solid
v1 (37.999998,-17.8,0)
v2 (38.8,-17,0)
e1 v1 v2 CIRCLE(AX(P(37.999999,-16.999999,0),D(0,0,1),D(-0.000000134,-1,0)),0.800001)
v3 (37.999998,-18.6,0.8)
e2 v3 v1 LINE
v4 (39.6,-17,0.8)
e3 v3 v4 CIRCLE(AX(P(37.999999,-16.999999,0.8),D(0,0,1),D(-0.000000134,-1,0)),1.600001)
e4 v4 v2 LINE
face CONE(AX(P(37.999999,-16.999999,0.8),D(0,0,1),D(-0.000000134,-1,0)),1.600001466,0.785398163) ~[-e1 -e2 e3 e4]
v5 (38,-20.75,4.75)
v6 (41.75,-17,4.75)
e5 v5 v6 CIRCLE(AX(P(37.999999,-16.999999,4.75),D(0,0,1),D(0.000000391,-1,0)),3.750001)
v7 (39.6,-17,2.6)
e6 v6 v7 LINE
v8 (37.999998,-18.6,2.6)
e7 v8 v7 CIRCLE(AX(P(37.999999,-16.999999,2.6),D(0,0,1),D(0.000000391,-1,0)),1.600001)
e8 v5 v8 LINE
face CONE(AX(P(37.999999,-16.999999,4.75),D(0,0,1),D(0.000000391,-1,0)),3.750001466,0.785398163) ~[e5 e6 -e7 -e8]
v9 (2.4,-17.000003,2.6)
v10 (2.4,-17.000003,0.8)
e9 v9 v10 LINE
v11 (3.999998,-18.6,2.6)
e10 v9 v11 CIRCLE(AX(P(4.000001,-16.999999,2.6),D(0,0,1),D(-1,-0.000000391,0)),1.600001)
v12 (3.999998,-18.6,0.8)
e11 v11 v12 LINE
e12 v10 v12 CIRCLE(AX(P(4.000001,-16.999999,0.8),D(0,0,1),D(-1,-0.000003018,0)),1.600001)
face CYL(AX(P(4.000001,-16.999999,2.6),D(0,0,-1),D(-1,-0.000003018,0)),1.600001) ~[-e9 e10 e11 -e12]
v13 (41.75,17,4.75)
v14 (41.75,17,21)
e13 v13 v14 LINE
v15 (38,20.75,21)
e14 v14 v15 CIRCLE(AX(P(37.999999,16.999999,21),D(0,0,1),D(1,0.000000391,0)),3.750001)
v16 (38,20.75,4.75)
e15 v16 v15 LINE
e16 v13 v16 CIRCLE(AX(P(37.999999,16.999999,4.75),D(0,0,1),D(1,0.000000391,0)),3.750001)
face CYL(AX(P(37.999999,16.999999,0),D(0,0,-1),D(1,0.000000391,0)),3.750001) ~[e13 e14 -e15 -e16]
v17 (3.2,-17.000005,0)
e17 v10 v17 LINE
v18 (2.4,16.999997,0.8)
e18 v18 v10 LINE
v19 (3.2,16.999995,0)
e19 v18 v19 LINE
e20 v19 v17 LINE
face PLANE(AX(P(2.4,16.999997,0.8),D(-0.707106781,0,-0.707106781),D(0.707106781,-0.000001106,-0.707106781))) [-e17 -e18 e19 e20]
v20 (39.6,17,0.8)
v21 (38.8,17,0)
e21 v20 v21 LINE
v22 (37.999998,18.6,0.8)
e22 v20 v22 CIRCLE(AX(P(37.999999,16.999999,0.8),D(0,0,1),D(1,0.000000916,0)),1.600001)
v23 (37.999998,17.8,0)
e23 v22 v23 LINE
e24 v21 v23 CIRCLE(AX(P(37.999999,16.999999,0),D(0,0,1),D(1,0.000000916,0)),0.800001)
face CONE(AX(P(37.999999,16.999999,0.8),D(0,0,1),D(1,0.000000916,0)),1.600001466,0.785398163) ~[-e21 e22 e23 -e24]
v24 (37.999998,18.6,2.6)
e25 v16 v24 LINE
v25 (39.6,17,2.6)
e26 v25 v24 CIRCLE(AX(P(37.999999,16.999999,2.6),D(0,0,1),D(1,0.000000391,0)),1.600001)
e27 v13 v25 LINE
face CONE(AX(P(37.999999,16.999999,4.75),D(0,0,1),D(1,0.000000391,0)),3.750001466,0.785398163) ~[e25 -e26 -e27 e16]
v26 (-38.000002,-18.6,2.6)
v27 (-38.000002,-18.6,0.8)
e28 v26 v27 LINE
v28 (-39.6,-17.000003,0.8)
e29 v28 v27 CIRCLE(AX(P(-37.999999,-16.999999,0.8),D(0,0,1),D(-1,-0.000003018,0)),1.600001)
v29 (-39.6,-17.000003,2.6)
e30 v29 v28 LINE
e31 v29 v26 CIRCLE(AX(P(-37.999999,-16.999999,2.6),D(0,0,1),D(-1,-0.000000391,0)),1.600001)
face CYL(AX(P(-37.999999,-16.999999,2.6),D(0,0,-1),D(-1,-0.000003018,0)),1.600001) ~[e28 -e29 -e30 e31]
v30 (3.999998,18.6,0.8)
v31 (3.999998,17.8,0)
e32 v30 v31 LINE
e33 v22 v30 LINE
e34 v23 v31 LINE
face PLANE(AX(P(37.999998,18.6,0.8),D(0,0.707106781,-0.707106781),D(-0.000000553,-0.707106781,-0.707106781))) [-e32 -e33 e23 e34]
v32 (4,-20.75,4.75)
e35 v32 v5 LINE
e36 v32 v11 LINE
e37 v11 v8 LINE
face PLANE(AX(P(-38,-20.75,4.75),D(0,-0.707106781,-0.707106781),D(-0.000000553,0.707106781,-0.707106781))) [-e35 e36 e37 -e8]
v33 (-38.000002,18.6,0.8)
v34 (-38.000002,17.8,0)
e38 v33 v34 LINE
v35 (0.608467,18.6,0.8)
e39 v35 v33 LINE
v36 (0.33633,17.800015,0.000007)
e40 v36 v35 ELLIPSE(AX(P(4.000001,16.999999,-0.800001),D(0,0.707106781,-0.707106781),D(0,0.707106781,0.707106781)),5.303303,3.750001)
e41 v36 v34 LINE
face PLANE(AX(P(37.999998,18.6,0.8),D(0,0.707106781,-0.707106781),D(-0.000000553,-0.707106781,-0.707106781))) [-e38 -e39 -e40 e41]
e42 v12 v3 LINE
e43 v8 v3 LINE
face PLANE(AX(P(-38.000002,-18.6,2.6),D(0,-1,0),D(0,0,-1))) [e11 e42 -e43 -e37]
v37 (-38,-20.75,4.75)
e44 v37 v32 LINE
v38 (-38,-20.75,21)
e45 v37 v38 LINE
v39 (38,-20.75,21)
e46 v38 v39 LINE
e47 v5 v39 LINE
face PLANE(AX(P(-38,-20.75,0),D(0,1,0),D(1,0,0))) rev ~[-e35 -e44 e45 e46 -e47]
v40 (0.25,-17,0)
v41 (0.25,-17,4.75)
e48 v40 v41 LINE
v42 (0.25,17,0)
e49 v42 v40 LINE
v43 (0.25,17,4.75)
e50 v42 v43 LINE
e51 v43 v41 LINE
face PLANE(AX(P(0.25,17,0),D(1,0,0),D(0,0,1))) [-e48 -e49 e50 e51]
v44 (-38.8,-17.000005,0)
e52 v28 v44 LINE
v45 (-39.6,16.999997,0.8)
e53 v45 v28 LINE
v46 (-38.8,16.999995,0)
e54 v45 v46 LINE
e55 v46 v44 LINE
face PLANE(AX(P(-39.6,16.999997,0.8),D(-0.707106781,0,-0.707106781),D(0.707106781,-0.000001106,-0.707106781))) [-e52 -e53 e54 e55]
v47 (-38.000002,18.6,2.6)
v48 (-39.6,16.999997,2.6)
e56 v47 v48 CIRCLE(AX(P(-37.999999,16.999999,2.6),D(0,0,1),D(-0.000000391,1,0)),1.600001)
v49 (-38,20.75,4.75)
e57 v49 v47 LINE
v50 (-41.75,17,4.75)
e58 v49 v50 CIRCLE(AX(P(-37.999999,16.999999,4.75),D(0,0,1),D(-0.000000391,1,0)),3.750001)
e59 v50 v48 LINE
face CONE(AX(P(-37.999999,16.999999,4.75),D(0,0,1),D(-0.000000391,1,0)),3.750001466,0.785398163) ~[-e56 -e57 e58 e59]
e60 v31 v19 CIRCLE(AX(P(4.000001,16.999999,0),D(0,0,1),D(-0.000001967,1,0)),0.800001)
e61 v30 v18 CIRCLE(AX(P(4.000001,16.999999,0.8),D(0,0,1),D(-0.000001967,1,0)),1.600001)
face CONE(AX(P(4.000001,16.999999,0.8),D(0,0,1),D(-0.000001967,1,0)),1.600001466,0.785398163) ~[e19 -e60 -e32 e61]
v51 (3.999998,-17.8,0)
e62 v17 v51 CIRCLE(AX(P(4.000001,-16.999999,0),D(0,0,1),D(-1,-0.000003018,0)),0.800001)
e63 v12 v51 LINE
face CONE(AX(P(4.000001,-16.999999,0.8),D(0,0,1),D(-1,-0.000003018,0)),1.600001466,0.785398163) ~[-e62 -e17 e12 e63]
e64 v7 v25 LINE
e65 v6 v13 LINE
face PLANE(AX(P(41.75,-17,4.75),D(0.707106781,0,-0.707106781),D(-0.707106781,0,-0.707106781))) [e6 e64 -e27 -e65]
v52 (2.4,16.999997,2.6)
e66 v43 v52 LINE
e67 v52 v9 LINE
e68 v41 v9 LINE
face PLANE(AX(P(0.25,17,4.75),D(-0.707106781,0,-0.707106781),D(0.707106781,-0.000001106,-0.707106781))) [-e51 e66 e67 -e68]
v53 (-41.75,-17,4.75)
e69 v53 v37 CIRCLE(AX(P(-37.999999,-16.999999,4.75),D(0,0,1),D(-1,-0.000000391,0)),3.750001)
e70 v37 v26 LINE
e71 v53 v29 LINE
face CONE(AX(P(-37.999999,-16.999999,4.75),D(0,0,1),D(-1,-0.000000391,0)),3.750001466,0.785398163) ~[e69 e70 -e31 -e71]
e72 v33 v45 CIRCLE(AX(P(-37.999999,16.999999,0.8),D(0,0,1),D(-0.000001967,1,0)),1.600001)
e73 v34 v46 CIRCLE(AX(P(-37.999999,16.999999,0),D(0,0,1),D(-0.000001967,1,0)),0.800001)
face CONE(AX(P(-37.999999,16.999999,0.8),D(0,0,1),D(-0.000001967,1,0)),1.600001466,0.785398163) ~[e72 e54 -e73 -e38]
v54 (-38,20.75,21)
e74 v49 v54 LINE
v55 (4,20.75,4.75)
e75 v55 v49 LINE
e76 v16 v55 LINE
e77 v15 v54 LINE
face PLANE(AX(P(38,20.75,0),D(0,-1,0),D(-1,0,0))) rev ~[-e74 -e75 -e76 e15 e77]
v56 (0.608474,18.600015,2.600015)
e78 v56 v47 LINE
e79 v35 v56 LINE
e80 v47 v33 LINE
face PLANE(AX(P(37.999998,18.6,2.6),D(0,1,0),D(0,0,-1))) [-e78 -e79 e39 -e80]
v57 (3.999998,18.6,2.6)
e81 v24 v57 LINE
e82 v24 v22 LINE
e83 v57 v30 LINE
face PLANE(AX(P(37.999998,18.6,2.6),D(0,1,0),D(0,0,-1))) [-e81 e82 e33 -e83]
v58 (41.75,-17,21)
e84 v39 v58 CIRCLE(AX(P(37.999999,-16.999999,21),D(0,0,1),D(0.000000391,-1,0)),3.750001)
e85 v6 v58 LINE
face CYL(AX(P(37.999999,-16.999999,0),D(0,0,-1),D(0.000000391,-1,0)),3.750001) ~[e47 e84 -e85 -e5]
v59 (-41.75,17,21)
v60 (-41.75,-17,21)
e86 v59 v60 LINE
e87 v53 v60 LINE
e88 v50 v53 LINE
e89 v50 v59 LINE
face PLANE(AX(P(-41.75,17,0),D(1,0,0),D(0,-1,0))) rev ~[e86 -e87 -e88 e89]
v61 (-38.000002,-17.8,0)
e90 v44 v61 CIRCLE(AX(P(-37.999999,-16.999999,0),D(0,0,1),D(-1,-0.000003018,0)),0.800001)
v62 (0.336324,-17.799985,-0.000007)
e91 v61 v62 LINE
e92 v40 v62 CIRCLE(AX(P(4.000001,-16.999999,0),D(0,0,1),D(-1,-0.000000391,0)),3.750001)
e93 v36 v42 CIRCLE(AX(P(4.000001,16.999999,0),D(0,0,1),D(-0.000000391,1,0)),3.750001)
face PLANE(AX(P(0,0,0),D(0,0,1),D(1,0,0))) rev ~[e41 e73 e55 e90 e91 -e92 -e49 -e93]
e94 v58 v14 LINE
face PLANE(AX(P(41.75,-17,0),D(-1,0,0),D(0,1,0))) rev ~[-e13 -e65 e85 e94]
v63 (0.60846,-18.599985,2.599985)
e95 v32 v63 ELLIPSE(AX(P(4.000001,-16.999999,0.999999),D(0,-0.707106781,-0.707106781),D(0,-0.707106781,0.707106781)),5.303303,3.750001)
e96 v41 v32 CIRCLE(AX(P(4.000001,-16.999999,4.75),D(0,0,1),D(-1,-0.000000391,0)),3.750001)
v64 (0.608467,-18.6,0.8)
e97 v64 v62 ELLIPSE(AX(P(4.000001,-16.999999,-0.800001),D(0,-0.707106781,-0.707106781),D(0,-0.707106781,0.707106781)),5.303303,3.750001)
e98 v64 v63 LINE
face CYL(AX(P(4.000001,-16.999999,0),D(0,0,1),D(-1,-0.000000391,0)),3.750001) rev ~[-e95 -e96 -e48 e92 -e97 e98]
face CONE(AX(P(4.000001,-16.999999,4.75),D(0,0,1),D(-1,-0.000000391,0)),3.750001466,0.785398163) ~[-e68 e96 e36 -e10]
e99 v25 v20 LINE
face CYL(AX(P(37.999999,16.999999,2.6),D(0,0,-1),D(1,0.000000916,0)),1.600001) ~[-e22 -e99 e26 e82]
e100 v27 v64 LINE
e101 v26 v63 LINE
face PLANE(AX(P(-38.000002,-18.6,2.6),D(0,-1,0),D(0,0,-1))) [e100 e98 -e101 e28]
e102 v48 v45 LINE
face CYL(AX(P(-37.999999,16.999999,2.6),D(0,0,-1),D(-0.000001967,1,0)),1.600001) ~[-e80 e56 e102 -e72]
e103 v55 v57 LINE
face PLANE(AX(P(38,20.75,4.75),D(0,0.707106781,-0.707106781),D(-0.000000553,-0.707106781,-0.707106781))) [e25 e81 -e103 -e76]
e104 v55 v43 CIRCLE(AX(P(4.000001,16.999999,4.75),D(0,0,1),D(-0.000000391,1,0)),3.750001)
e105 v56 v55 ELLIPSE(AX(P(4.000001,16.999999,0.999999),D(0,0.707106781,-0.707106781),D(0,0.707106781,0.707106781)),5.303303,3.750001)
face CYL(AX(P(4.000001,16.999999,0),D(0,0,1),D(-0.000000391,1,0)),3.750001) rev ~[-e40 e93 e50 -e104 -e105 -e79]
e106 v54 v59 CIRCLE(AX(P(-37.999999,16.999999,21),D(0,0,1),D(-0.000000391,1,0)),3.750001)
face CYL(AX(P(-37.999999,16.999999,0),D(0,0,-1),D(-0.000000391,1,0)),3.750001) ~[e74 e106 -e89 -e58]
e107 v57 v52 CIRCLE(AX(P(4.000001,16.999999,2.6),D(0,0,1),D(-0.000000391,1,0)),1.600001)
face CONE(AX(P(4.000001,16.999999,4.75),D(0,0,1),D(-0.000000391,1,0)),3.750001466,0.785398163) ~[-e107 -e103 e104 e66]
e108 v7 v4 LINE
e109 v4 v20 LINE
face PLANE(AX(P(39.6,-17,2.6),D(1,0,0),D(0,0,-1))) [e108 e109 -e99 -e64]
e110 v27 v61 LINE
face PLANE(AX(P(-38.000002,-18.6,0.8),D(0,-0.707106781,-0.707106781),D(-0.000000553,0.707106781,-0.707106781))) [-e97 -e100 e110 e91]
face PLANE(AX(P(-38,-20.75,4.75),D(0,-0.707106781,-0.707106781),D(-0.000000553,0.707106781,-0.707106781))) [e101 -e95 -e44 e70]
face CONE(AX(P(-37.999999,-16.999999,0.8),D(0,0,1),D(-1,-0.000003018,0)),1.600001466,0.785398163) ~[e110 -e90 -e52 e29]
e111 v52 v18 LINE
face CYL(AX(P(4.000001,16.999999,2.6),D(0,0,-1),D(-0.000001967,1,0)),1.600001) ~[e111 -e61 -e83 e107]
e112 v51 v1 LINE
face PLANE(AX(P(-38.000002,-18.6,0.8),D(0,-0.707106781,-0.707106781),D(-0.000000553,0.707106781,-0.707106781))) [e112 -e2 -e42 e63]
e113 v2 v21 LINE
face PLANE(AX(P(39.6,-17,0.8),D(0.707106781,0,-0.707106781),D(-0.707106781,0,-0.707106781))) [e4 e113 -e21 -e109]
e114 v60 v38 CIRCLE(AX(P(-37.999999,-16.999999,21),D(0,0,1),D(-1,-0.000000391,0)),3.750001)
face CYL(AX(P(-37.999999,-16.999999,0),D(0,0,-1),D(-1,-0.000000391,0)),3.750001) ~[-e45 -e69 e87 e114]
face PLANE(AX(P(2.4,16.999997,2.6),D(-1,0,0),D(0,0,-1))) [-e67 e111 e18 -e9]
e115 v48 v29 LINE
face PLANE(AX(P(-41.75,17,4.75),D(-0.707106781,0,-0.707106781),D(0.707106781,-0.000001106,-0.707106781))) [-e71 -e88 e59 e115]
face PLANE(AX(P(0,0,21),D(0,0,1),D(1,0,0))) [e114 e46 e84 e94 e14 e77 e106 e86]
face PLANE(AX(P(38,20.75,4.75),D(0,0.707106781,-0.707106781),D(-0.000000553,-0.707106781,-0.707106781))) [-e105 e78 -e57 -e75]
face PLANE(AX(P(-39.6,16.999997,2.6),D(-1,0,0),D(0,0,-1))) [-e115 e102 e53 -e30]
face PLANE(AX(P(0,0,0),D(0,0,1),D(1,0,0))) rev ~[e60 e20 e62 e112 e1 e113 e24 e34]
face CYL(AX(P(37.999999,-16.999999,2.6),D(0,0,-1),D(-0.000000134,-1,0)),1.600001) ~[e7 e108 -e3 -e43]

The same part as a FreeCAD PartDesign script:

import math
import FreeCAD as App
import Part
import Sketcher
Q = App.Units.Quantity


def add_polygon(sketch, points):
    """Adds a closed chain of lines whose ends are joined by coincident constraints."""
    first, n = sketch.GeometryCount, len(points)
    for a, b in zip(points, points[1:] + points[:1]):
        sketch.addGeometry(Part.LineSegment(App.Vector(*a, 0), App.Vector(*b, 0)), False)
    for i in range(n):
        sketch.addConstraint(Sketcher.Constraint("Coincident", first + i, 2, first + (i + 1) % n, 1))

doc = App.newDocument("Part")
body = doc.addObject("PartDesign::Body", "Body")

# Sketch on XY plane
sketch1 = body.newObject("Sketcher::SketchObject", "Sketch")
sketch1.AttachmentSupport = (doc.getObject("XY_Plane"), [""])
sketch1.MapMode = "FlatFace"
sketch1.addGeometry([
    Part.LineSegment(App.Vector(-38, -20.75, 0), App.Vector(38, -20.75, 0)),  # 0
    Part.ArcOfCircle(Part.Circle(App.Vector(37.999999, -16.999999, 0), App.Vector(0, 0, 1), 3.750001), math.radians(-89.999978), math.radians(-0.000022)),  # 1
    Part.LineSegment(App.Vector(41.75, -17, 0), App.Vector(41.75, 17, 0)),  # 2
    Part.ArcOfCircle(Part.Circle(App.Vector(37.999999, 16.999999, 0), App.Vector(0, 0, 1), 3.750001), math.radians(0.000022), math.radians(89.999978)),  # 3
    Part.LineSegment(App.Vector(38, 20.75, 0), App.Vector(-38, 20.75, 0)),  # 4
    Part.ArcOfCircle(Part.Circle(App.Vector(-37.999999, 16.999999, 0), App.Vector(0, 0, 1), 3.750001), math.radians(90.000022), math.radians(179.999978)),  # 5
    Part.LineSegment(App.Vector(-41.75, 17, 0), App.Vector(-41.75, -17, 0)),  # 6
    Part.ArcOfCircle(Part.Circle(App.Vector(-37.999999, -16.999999, 0), App.Vector(0, 0, 1), 3.750001), math.radians(-179.999978), math.radians(-90.000022)),  # 7
], False)
sketch1.addConstraint([
    Sketcher.Constraint("Tangent", 0, 2, 1, 1),
    Sketcher.Constraint("Tangent", 1, 2, 2, 1),
    Sketcher.Constraint("Tangent", 2, 2, 3, 1),
    Sketcher.Constraint("Tangent", 3, 2, 4, 1),
    Sketcher.Constraint("Tangent", 4, 2, 5, 1),
    Sketcher.Constraint("Tangent", 5, 2, 6, 1),
    Sketcher.Constraint("Tangent", 6, 2, 7, 1),
    Sketcher.Constraint("Tangent", 7, 2, 0, 1),
    Sketcher.Constraint("Horizontal", 0),
    Sketcher.Constraint("Vertical", 2),
    Sketcher.Constraint("Horizontal", 4),
    Sketcher.Constraint("Vertical", 6),
    Sketcher.Constraint("Equal", 1, 3),
    Sketcher.Constraint("Equal", 3, 5),
    Sketcher.Constraint("Equal", 5, 7),
    Sketcher.Constraint("Symmetric", 1, 3, 5, 3, -1, 1),
    Sketcher.Constraint("DistanceX", 0, 1, 0, 2, Q("76 mm")),
    Sketcher.Constraint("DistanceY", 2, 1, 2, 2, Q("34 mm")),
    Sketcher.Constraint("Radius", 1, Q("3.750001 mm")),
])
pad1 = body.newObject("PartDesign::Pad", "Pad")
pad1.Profile = sketch1
pad1.Length = 21

# Sketch on XZ plane
sketch2 = body.newObject("Sketcher::SketchObject", "Sketch001")
sketch2.AttachmentSupport = (doc.getObject("XZ_Plane"), [""])
sketch2.MapMode = "FlatFace"
add_polygon(sketch2, [(41.75, 4.75), (39.6, 2.6), (39.6, 0.8), (38.8, 0), (41.75, 0)])  # lines 0-4
sketch2.addConstraint([
    Sketcher.Constraint("Vertical", 1),
    Sketcher.Constraint("Horizontal", 3),
    Sketcher.Constraint("Vertical", 4),
    Sketcher.Constraint("PointOnObject", 2, 2, -1),
    Sketcher.Constraint("Parallel", 0, 2),
    Sketcher.Constraint("Angle", 0, Q("-135 deg")),
    Sketcher.Constraint("DistanceY", 1, 2, 1, 1, Q("1.8 mm")),
    Sketcher.Constraint("DistanceX", 3, 1, 3, 2, Q("2.95 mm")),
    Sketcher.Constraint("DistanceX", -1, 1, 0, 2, Q("39.6 mm")),
    Sketcher.Constraint("DistanceY", -1, 1, 0, 2, Q("2.6 mm")),
])

# Sketch on XY plane
sketch3 = body.newObject("Sketcher::SketchObject", "Sketch002")
sketch3.AttachmentSupport = (doc.getObject("XY_Plane"), [""])
sketch3.MapMode = "FlatFace"
sketch3.addGeometry([
    Part.LineSegment(App.Vector(-38, -20.75, 0), App.Vector(38, -20.75, 0)),  # 0
    Part.ArcOfCircle(Part.Circle(App.Vector(37.999999, -16.999999, 0), App.Vector(0, 0, 1), 3.750001), math.radians(-89.999978), math.radians(-0.000022)),  # 1
    Part.LineSegment(App.Vector(41.75, -17, 0), App.Vector(41.75, 17, 0)),  # 2
    Part.ArcOfCircle(Part.Circle(App.Vector(37.999999, 16.999999, 0), App.Vector(0, 0, 1), 3.750001), math.radians(0.000022), math.radians(89.999978)),  # 3
    Part.LineSegment(App.Vector(38, 20.75, 0), App.Vector(-38, 20.75, 0)),  # 4
    Part.ArcOfCircle(Part.Circle(App.Vector(-37.999999, 16.999999, 0), App.Vector(0, 0, 1), 3.750001), math.radians(90.000022), math.radians(179.999978)),  # 5
    Part.LineSegment(App.Vector(-41.75, 17, 0), App.Vector(-41.75, -17, 0)),  # 6
    Part.ArcOfCircle(Part.Circle(App.Vector(-37.999999, -16.999999, 0), App.Vector(0, 0, 1), 3.750001), math.radians(-179.999978), math.radians(-90.000022)),  # 7
], False)
sketch3.addConstraint([
    Sketcher.Constraint("Tangent", 0, 2, 1, 1),
    Sketcher.Constraint("Tangent", 1, 2, 2, 1),
    Sketcher.Constraint("Tangent", 2, 2, 3, 1),
    Sketcher.Constraint("Tangent", 3, 2, 4, 1),
    Sketcher.Constraint("Tangent", 4, 2, 5, 1),
    Sketcher.Constraint("Tangent", 5, 2, 6, 1),
    Sketcher.Constraint("Tangent", 6, 2, 7, 1),
    Sketcher.Constraint("Tangent", 7, 2, 0, 1),
    Sketcher.Constraint("Horizontal", 0),
    Sketcher.Constraint("Vertical", 2),
    Sketcher.Constraint("Horizontal", 4),
    Sketcher.Constraint("Vertical", 6),
    Sketcher.Constraint("Equal", 1, 3),
    Sketcher.Constraint("Equal", 3, 5),
    Sketcher.Constraint("Equal", 5, 7),
    Sketcher.Constraint("Symmetric", 1, 3, 5, 3, -1, 1),
    Sketcher.Constraint("DistanceX", 0, 1, 0, 2, Q("76 mm")),
    Sketcher.Constraint("DistanceY", 2, 1, 2, 2, Q("34 mm")),
    Sketcher.Constraint("Radius", 1, Q("3.750001 mm")),
])
doc.recompute()

subtractivepipe = body.newObject("PartDesign::SubtractivePipe", "SubtractivePipe")
subtractivepipe.Profile = sketch2
subtractivepipe.Spine = (sketch3, ["Edge1", "Edge2", "Edge3", "Edge4", "Edge5", "Edge6", "Edge7", "Edge8"])
doc.recompute()

linearpattern = body.newObject("PartDesign::LinearPattern", "LinearPattern")
linearpattern.Originals = [subtractivepipe]
linearpattern.Direction = (doc.getObject("X_Axis"), [""])
linearpattern.Mode = "offset"
linearpattern.Offset = 42
linearpattern.Occurrences = 2
body.Tip = linearpattern

doc.recompute()
